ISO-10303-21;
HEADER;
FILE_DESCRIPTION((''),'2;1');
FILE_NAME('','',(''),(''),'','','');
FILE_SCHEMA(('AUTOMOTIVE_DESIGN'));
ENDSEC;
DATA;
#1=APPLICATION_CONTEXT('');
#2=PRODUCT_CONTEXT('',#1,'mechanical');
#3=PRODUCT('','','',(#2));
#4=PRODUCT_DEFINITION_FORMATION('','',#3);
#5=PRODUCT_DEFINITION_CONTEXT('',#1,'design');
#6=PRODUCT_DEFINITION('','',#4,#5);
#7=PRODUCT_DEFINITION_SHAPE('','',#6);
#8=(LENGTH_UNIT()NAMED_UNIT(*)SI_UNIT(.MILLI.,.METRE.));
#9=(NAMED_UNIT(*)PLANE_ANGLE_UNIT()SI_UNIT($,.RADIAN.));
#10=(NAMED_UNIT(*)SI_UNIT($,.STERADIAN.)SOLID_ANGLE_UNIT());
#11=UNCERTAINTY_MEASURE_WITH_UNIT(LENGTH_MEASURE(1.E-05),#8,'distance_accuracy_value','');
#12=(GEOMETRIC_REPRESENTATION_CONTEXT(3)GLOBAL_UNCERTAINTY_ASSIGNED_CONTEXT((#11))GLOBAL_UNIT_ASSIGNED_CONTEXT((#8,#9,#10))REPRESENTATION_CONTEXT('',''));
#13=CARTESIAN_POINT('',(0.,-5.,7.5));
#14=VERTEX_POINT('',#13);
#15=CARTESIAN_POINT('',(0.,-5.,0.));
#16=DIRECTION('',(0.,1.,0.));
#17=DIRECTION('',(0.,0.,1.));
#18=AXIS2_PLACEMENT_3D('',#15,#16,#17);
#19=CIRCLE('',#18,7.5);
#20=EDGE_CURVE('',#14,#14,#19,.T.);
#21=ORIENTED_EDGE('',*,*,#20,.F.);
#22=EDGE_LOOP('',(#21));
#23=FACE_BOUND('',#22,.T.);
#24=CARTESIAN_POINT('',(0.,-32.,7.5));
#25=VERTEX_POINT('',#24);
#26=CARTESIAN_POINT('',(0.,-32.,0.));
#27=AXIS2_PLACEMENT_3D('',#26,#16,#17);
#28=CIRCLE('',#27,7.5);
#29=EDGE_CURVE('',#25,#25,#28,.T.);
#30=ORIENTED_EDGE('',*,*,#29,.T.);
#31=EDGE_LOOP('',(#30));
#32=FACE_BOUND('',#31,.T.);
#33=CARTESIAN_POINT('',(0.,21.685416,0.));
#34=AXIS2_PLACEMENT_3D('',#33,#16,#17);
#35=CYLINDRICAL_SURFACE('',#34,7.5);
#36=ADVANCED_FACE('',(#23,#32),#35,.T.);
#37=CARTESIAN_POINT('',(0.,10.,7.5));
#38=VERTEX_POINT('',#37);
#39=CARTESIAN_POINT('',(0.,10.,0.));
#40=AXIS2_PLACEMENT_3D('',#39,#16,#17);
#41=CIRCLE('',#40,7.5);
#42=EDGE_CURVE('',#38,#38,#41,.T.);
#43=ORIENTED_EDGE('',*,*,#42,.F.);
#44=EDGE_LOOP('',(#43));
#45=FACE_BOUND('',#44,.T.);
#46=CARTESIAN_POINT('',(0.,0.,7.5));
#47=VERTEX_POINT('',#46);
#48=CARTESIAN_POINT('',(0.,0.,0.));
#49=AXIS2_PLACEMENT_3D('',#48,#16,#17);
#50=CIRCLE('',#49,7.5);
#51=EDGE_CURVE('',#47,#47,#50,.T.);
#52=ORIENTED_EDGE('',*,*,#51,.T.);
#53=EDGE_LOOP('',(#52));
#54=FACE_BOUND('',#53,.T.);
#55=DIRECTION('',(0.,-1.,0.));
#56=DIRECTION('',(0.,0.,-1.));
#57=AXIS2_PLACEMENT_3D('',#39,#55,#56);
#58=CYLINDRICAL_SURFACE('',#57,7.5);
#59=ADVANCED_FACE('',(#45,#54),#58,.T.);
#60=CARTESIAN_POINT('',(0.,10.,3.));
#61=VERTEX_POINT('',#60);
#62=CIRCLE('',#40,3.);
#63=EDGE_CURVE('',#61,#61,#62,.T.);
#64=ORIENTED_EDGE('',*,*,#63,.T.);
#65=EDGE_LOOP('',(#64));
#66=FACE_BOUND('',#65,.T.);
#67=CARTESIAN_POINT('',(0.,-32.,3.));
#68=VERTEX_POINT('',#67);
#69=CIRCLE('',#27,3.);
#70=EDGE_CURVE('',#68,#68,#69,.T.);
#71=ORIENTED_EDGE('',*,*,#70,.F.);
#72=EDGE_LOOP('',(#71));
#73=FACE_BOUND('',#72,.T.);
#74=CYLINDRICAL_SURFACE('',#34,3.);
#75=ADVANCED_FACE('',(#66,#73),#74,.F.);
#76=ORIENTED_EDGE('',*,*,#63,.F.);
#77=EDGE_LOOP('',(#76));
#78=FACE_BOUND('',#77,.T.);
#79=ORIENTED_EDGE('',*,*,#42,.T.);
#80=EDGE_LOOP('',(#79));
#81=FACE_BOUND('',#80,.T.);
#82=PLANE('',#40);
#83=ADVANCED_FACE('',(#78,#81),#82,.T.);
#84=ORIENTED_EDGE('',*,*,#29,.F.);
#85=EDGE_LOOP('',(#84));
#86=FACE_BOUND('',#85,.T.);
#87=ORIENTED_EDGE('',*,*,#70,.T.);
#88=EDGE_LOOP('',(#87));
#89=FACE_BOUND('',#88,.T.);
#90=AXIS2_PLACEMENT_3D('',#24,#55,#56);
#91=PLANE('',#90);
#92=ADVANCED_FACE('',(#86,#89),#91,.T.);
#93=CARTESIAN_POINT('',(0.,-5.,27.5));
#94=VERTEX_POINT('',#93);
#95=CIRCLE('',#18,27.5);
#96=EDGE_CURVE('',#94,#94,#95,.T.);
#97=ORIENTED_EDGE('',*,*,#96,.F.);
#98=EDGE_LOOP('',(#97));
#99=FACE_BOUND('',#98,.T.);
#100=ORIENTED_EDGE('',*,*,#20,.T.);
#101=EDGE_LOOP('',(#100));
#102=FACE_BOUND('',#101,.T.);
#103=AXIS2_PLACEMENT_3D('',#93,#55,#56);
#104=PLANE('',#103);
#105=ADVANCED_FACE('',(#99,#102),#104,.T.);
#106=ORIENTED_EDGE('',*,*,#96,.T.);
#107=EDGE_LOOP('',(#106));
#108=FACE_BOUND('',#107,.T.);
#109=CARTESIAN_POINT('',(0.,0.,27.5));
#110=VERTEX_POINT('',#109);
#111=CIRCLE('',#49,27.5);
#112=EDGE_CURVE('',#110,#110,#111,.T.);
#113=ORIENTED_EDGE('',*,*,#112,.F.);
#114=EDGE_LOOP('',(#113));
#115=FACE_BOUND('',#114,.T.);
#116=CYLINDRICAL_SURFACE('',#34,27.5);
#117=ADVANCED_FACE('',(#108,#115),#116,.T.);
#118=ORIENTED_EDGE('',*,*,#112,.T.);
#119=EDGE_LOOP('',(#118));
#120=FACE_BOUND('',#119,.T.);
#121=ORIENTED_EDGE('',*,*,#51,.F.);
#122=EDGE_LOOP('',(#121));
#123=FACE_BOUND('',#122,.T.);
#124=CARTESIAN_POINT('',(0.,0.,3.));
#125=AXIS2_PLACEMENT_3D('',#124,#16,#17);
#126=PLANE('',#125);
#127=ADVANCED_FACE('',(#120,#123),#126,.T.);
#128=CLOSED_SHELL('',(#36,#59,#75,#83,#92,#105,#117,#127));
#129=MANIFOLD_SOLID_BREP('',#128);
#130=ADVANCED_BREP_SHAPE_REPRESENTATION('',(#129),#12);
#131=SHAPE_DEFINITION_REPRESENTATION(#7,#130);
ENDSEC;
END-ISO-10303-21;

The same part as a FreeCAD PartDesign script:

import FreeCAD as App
import Part
import Sketcher
from FreeCAD import Vector

doc = App.newDocument("Part")
body = doc.addObject("PartDesign::Body", "Body")

# Sketch on YZ plane
sketch1 = doc.addObject("Sketcher::SketchObject", "Sketch")
body.addObject(sketch1)
sketch1.AttachmentSupport = (doc.YZ_Plane, [""])
sketch1.MapMode = "FlatFace"
sketch1.addGeometry([
    Part.LineSegment(Vector(0, 3, 0), Vector(0, 27.5, 0)),  # 0
    Part.LineSegment(Vector(0, 27.5, 0), Vector(-5, 27.5, 0)),  # 1
    Part.LineSegment(Vector(-5, 27.5, 0), Vector(-5, 7.5, 0)),  # 2
    Part.LineSegment(Vector(-5, 7.5, 0), Vector(-32, 7.5, 0)),  # 3
    Part.LineSegment(Vector(-32, 7.5, 0), Vector(-32, 3, 0)),  # 4
    Part.LineSegment(Vector(-32, 3, 0), Vector(0, 3, 0)),  # 5
], False)
sketch1.addConstraint([
    Sketcher.Constraint("Coincident", 0, 2, 1, 1),
    Sketcher.Constraint("Coincident", 1, 2, 2, 1),
    Sketcher.Constraint("Coincident", 2, 2, 3, 1),
    Sketcher.Constraint("Coincident", 3, 2, 4, 1),
    Sketcher.Constraint("Coincident", 4, 2, 5, 1),
    Sketcher.Constraint("Coincident", 5, 2, 0, 1),
    Sketcher.Constraint("Vertical", 0),
    Sketcher.Constraint("Horizontal", 1),
    Sketcher.Constraint("Vertical", 2),
    Sketcher.Constraint("Horizontal", 3),
    Sketcher.Constraint("Vertical", 4),
    Sketcher.Constraint("Horizontal", 5),
    Sketcher.Constraint("PointOnObject", 0, 2, -2),
    Sketcher.Constraint("DistanceX", 1, 2, 1, 1, 5.0),
    Sketcher.Constraint("DistanceX", 3, 2, 3, 1, 27.0),
    Sketcher.Constraint("DistanceY", 2, 2, 2, 1, 20.0),
    Sketcher.Constraint("DistanceY", 0, 1, 0, 2, 24.5),
    Sketcher.Constraint("DistanceY", -1, 1, 4, 2, 3.0),
])
revolution = doc.addObject("PartDesign::Revolution", "Revolution")
body.addObject(revolution)
revolution.Profile = sketch1
revolution.ReferenceAxis = (sketch1, ["H_Axis"])
revolution.Angle = 360

# Sketch on XZ plane
sketch2 = doc.addObject("Sketcher::SketchObject", "Sketch001")
body.addObject(sketch2)
sketch2.AttachmentSupport = (doc.XZ_Plane, [""])
sketch2.MapMode = "FlatFace"
sketch2.addGeometry([
    Part.Circle(Vector(0, 0, 0), Vector(0, 0, 1), 7.5),
    Part.Circle(Vector(0, 0, 0), Vector(0, 0, 1), 3),
], False)
sketch2.addConstraint([
    Sketcher.Constraint("Coincident", 0, 3, -1, 1),
    Sketcher.Constraint("Coincident", 1, 3, -1, 1),
    Sketcher.Constraint("Diameter", 0, 15.0),
    Sketcher.Constraint("Diameter", 1, 6.0),
])
pad1 = doc.addObject("PartDesign::Pad", "Pad")
body.addObject(pad1)
pad1.Profile = sketch2
pad1.Length = 10
pad1.Reversed = True

doc.recompute()
